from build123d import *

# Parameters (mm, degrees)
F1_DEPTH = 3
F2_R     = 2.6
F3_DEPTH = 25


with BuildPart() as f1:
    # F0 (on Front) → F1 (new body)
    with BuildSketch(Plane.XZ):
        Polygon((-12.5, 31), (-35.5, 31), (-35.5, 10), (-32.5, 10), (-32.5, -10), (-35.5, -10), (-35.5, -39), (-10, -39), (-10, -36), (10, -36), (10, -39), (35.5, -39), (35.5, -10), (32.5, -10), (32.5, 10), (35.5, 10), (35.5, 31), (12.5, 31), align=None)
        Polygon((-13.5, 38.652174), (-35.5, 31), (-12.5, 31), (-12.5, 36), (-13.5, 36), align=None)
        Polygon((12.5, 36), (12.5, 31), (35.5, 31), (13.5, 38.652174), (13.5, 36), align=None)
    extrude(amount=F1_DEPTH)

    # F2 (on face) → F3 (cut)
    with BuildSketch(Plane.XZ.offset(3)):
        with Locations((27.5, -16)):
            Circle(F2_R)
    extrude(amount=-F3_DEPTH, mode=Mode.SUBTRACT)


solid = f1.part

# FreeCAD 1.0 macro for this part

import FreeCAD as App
import Part
import Sketcher

V = App.Vector


def add_polygon(sketch, points):
    """Adds a closed chain of lines whose ends are joined by coincident constraints."""
    first, n = sketch.GeometryCount, len(points)
    for a, b in zip(points, points[1:] + points[:1]):
        sketch.addGeometry(Part.LineSegment(App.Vector(*a, 0), App.Vector(*b, 0)), False)
    for i in range(n):
        sketch.addConstraint(Sketcher.Constraint("Coincident", first + i, 2, first + (i + 1) % n, 1))

doc = App.newDocument("Part")
body = doc.addObject("PartDesign::Body", "Body")

sketch1 = body.newObject("Sketcher::SketchObject", "Sketch")
sketch1.AttachmentSupport = (doc.getObject("XZ_Plane"), [""])
sketch1.MapMode = "FlatFace"
add_polygon(sketch1, [(-35.5, 31), (-35.5, 10), (-32.5, 10), (-32.5, -10), (-35.5, -10), (-35.5, -39), (-10, -39), (-10, -36), (10, -36), (10, -39), (35.5, -39), (35.5, -10), (32.5, -10), (32.5, 10), (35.5, 10), (35.5, 31), (13.5, 38.7), (13.5, 36), (12.5, 36), (12.5, 31), (-12.5, 31), (-12.5, 36), (-13.5, 36), (-13.5, 38.7)])
sketch1.addConstraint(Sketcher.Constraint("Vertical", 0))
sketch1.addConstraint(Sketcher.Constraint("Horizontal", 1))
sketch1.addConstraint(Sketcher.Constraint("Vertical", 2))
sketch1.addConstraint(Sketcher.Constraint("Horizontal", 3))
sketch1.addConstraint(Sketcher.Constraint("Vertical", 4))
sketch1.addConstraint(Sketcher.Constraint("Horizontal", 5))
sketch1.addConstraint(Sketcher.Constraint("Vertical", 6))
sketch1.addConstraint(Sketcher.Constraint("Horizontal", 7))
sketch1.addConstraint(Sketcher.Constraint("Vertical", 8))
sketch1.addConstraint(Sketcher.Constraint("Horizontal", 9))
sketch1.addConstraint(Sketcher.Constraint("Vertical", 10))
sketch1.addConstraint(Sketcher.Constraint("Horizontal", 11))
sketch1.addConstraint(Sketcher.Constraint("Vertical", 12))
sketch1.addConstraint(Sketcher.Constraint("Horizontal", 13))
sketch1.addConstraint(Sketcher.Constraint("Vertical", 14))
sketch1.addConstraint(Sketcher.Constraint("Vertical", 16))
sketch1.addConstraint(Sketcher.Constraint("Horizontal", 17))
sketch1.addConstraint(Sketcher.Constraint("Vertical", 18))
sketch1.addConstraint(Sketcher.Constraint("Horizontal", 19))
sketch1.addConstraint(Sketcher.Constraint("Vertical", 20))
sketch1.addConstraint(Sketcher.Constraint("Horizontal", 21))
sketch1.addConstraint(Sketcher.Constraint("Vertical", 22))
sketch1.addConstraint(Sketcher.Constraint("Symmetric", 0, 2, 10, 2, -1, 1))
sketch1.addConstraint(Sketcher.Constraint("Symmetric", 2, 2, 12, 2, -1, 1))
sketch1.addConstraint(Sketcher.Constraint("Symmetric", 5, 2, 8, 2, -2))
sketch1.addConstraint(Sketcher.Constraint("Symmetric", 3, 2, 10, 2, -2))
sketch1.addConstraint(Sketcher.Constraint("Symmetric", 17, 2, 20, 2, -2))
sketch1.addConstraint(Sketcher.Constraint("Symmetric", 15, 2, 22, 2, -2))
sketch1.addConstraint(Sketcher.Constraint("Symmetric", 14, 2, 23, 2, -2))
sketch1.addConstraint(Sketcher.Constraint("Horizontal", 14, 2, 18, 2))
sketch1.addConstraint(Sketcher.Constraint("Equal", 7, 2))
sketch1.addConstraint(Sketcher.Constraint("Equal", 13, 6))
sketch1.addConstraint(Sketcher.Constraint("DistanceX", 1, 1, 1, 2, 3.0))
sketch1.addConstraint(Sketcher.Constraint("DistanceX", 7, 1, 7, 2, 20.0))
sketch1.addConstraint(Sketcher.Constraint("DistanceX", 17, 2, 17, 1, 1.0))
sketch1.addConstraint(Sketcher.Constraint("DistanceX", 19, 2, 19, 1, 25.0))
sketch1.addConstraint(Sketcher.Constraint("DistanceY", 0, 2, 0, 1, 21.0))
sketch1.addConstraint(Sketcher.Constraint("DistanceY", 4, 2, 4, 1, 29.0))
sketch1.addConstraint(Sketcher.Constraint("DistanceY", 18, 2, 18, 1, 5.0))
sketch1.addConstraint(Sketcher.Constraint("DistanceX", 5, 1, 5, 2, 25.5))
sketch1.addConstraint(Sketcher.Constraint("DistanceY", 16, 2, 16, 1, 2.652174))
pad1 = body.newObject("PartDesign::Pad", "Pad")
pad1.Profile = sketch1
pad1.Length = 3

sketch2 = body.newObject("Sketcher::SketchObject", "Sketch001")
sketch2.AttachmentSupport = (doc.getObject("XZ_Plane"), [""])
sketch2.MapMode = "FlatFace"
sketch2.AttachmentOffset = App.Placement(V(0, 0, 3), App.Rotation())
sketch2.addGeometry(Part.Circle(V(27.5, -16, 0), V(0, 0, 1), 2.6), False)
sketch2.addConstraint(Sketcher.Constraint("Diameter", 0, 5.2))
sketch2.addConstraint(Sketcher.Constraint("DistanceY", 0, 3, -1, 1, 16.0))
sketch2.addConstraint(Sketcher.Constraint("DistanceX", -1, 1, 0, 3, 27.5))
pocket1 = body.newObject("PartDesign::Pocket", "Pocket")
pocket1.Profile = sketch2
pocket1.Length = 25

doc.recompute()
